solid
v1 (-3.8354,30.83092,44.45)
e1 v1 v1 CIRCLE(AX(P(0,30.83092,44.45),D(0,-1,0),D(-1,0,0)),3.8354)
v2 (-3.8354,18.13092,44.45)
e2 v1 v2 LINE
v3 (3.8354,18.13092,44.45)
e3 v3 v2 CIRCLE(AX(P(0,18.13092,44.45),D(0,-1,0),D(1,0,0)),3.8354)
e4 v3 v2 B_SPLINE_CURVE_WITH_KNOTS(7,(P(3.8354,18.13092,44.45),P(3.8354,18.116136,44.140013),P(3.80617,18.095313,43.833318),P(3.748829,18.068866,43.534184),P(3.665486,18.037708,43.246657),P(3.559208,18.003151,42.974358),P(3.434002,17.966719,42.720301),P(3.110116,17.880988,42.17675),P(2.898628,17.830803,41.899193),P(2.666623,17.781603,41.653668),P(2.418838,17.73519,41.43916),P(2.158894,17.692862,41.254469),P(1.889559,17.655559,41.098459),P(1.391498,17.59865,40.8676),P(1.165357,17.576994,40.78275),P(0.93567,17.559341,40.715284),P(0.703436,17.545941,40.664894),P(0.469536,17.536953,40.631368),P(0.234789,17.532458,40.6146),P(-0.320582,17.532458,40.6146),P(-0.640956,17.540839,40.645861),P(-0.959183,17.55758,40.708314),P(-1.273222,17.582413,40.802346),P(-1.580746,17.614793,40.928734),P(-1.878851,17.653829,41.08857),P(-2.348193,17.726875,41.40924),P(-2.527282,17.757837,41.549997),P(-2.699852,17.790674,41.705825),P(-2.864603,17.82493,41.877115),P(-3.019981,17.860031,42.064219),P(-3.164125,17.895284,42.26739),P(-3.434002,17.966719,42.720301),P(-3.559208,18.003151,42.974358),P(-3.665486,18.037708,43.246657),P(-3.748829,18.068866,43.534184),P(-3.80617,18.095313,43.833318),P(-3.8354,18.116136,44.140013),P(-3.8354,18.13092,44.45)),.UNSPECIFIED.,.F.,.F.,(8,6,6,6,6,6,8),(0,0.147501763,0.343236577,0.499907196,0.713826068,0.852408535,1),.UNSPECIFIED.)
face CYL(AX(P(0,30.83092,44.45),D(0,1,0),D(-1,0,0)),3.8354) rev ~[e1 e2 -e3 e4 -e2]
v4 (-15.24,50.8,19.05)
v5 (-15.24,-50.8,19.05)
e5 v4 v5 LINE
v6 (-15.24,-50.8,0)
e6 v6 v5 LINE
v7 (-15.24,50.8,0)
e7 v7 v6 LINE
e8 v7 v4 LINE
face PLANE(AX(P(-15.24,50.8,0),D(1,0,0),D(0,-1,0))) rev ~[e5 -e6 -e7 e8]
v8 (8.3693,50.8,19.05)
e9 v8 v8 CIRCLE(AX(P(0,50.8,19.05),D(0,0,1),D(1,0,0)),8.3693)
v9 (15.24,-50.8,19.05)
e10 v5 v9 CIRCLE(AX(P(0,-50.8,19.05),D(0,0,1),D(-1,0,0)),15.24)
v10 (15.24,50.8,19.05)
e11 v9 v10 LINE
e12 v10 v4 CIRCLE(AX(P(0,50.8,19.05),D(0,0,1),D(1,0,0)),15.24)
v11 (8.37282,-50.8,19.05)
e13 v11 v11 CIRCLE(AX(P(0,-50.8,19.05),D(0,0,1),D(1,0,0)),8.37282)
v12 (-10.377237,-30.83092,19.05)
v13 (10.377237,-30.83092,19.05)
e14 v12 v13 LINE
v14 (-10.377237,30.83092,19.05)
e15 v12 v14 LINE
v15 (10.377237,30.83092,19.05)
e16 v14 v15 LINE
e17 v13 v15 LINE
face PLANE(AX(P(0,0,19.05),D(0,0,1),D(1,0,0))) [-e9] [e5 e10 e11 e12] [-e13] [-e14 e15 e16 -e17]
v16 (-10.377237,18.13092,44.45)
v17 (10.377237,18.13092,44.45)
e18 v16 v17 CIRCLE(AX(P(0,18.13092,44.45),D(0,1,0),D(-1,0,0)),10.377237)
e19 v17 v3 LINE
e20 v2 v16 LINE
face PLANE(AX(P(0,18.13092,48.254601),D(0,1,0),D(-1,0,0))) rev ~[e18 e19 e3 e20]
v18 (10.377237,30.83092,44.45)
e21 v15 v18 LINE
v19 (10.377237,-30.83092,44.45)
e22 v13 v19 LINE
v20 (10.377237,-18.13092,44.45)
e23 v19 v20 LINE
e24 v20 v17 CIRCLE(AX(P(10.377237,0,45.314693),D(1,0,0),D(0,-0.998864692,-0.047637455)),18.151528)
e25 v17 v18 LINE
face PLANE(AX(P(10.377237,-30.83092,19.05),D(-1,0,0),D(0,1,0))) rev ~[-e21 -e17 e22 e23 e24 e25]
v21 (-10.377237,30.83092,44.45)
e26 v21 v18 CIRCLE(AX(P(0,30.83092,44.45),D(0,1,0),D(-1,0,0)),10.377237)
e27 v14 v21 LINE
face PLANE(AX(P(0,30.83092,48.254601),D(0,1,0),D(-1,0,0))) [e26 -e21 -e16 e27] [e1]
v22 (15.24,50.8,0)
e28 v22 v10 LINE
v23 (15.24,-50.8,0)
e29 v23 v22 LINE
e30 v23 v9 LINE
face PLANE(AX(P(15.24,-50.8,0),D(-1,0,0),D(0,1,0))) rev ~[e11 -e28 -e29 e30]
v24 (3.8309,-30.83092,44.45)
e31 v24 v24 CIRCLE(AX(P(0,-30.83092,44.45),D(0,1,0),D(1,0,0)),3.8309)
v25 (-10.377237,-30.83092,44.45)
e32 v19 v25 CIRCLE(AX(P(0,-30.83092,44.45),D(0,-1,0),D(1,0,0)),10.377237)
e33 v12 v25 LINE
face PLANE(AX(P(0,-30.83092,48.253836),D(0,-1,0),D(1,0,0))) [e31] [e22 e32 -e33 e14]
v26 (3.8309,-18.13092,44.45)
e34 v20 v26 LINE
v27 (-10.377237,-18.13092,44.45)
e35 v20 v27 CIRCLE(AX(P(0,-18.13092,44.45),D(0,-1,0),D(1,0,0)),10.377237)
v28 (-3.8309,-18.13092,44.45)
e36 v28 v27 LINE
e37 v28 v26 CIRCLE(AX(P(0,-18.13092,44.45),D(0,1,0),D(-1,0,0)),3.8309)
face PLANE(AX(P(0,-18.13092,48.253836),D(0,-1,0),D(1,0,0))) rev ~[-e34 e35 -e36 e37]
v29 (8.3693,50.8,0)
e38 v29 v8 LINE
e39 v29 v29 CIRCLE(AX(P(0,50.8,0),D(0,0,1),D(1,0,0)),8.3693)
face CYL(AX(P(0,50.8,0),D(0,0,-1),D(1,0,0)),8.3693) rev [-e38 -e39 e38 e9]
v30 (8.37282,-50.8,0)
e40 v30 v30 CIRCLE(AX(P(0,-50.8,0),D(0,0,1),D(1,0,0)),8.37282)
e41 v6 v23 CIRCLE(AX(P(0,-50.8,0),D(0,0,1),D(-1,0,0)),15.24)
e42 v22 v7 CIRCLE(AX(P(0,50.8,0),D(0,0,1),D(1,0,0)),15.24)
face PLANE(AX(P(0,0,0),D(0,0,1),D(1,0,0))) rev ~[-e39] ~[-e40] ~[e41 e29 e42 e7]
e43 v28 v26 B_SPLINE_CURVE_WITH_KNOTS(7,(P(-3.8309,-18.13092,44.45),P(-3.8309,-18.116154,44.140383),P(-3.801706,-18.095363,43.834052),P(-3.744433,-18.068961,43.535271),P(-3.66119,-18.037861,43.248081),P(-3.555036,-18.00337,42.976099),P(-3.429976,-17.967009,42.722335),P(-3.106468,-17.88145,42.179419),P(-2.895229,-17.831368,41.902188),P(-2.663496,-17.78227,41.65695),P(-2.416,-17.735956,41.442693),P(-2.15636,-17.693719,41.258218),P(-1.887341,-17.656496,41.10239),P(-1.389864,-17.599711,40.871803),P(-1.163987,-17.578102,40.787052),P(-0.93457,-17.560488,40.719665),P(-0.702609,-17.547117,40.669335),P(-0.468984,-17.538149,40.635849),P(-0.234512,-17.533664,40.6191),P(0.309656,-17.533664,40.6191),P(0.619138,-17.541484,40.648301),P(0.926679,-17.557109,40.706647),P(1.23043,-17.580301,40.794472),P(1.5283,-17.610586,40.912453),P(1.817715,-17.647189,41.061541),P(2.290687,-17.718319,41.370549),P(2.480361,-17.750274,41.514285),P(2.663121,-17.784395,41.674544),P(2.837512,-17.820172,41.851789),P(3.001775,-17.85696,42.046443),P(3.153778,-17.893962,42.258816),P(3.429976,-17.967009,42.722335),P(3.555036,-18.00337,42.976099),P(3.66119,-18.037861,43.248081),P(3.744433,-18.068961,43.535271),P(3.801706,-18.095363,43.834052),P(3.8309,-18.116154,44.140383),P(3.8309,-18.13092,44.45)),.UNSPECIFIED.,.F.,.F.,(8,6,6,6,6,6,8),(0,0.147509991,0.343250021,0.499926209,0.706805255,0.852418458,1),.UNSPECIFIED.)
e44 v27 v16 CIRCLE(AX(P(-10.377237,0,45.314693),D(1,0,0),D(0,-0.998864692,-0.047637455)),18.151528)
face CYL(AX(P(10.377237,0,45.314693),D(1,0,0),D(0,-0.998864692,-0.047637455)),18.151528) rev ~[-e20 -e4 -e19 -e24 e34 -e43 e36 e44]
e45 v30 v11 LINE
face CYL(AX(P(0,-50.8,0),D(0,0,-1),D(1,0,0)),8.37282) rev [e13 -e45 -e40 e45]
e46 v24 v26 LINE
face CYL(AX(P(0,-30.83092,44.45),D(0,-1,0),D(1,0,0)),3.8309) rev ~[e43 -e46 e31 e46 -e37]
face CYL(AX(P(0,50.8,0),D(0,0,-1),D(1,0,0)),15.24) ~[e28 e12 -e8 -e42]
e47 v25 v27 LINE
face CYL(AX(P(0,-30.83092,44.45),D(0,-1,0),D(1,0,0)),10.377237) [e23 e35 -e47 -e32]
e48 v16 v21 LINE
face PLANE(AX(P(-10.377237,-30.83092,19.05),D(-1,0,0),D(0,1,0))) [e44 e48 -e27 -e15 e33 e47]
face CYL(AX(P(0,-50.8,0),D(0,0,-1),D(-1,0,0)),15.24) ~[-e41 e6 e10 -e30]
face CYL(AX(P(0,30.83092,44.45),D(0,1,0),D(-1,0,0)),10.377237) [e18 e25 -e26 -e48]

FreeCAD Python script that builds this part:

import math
import FreeCAD as App
import Part
import Sketcher
Q = App.Units.Quantity

doc = App.newDocument("Part")
params = doc.addObject("Spreadsheet::Sheet", "Params")
for row, (alias, value) in enumerate([
    ("sketch1_radius", "0.6 in"),
    ("sketch1_height", "4 in"),
    ("sketch1_diameter", "0.659 in"),
    ("pad1_length", "0.75 in"),
    ("pad2_length", "1 in"),
    ("pocket1_length", "1 in"),
    ("pad3_length", "0.5 in"),
    ("pocket2_length", "0.6 in"),
    ("sketch6_radius", "0.151 in"),
    ("pad4_length", "0.5 in"),
    ("sketch7_diameter", "0.302 in"),
    ("pocket3_length", "0.6 in"),
], start=1):
    params.set(f"A{row}", alias)
    params.set(f"B{row}", "=" + value)
    params.setAlias(f"B{row}", alias)

body = doc.addObject("PartDesign::Body", "Body")

# Sketch on XY plane
sketch1 = body.newObject("Sketcher::SketchObject", "Sketch")
sketch1.AttachmentSupport = (doc.getObject("XY_Plane"), [""])
sketch1.MapMode = "FlatFace"
sketch1.addGeometry(Part.LineSegment(App.Vector(-15, 51, 0), App.Vector(-15, -51, 0)), False)
sketch1.addGeometry(Part.ArcOfCircle(Part.Circle(App.Vector(0, -51, 0), App.Vector(0, 0, 1), 15), math.radians(180), math.radians(360)), False)
sketch1.addGeometry(Part.LineSegment(App.Vector(15, -51, 0), App.Vector(15, 51, 0)), False)
sketch1.addGeometry(Part.ArcOfCircle(Part.Circle(App.Vector(0, 51, 0), App.Vector(0, 0, 1), 15), math.radians(0), math.radians(180)), False)
sketch1.addGeometry(Part.Circle(App.Vector(0, -51, 0), App.Vector(0, 0, 1), 8), False)
sketch1.addGeometry(Part.Circle(App.Vector(0, 51, 0), App.Vector(0, 0, 1), 8), False)
sketch1.addConstraint(Sketcher.Constraint("Tangent", 0, 2, 1, 1))
sketch1.addConstraint(Sketcher.Constraint("Tangent", 1, 2, 2, 1))
sketch1.addConstraint(Sketcher.Constraint("Tangent", 2, 2, 3, 1))
sketch1.addConstraint(Sketcher.Constraint("Tangent", 3, 2, 0, 1))
sketch1.addConstraint(Sketcher.Constraint("Vertical", 0))
sketch1.addConstraint(Sketcher.Constraint("Vertical", 2))
sketch1.addConstraint(Sketcher.Constraint("Coincident", 4, 3, 1, 3))
sketch1.addConstraint(Sketcher.Constraint("Coincident", 5, 3, 3, 3))
sketch1.addConstraint(Sketcher.Constraint("Symmetric", 1, 3, 3, 3, -1, 1))
sketch1.addConstraint(Sketcher.Constraint("Radius", 1, Q("0.6 in")))
sketch1.addConstraint(Sketcher.Constraint("DistanceY", 0, 2, 0, 1, Q("4 in")))
sketch1.addConstraint(Sketcher.Constraint("Diameter", 5, Q("0.659 in")))
sketch1.addConstraint(Sketcher.Constraint("Diameter", 4, 16.74564))
sketch1.setExpression("Constraints[9]", "Params.sketch1_radius")
sketch1.setExpression("Constraints[10]", "Params.sketch1_height")
sketch1.setExpression("Constraints[11]", "Params.sketch1_diameter")
pad1 = body.newObject("PartDesign::Pad", "Pad")
pad1.Profile = sketch1
pad1.setExpression("Length", "Params.pad1_length")

# Sketch on XY plane
sketch2 = body.newObject("Sketcher::SketchObject", "Sketch001")
sketch2.AttachmentSupport = (doc.getObject("XY_Plane"), [""])
sketch2.MapMode = "FlatFace"
sketch2.AttachmentOffset = App.Placement(App.Vector(0, 0, 0.75 * 25.4), App.Rotation())
sketch2.addGeometry(Part.LineSegment(App.Vector(-10, 31, 0), App.Vector(-10, -31, 0)), False)
sketch2.addGeometry(Part.LineSegment(App.Vector(-10, -31, 0), App.Vector(10, -31, 0)), False)
sketch2.addGeometry(Part.LineSegment(App.Vector(10, -31, 0), App.Vector(10, 31, 0)), False)
sketch2.addGeometry(Part.LineSegment(App.Vector(10, 31, 0), App.Vector(-10, 31, 0)), False)
sketch2.addConstraint(Sketcher.Constraint("Coincident", 0, 2, 1, 1))
sketch2.addConstraint(Sketcher.Constraint("Coincident", 1, 2, 2, 1))
sketch2.addConstraint(Sketcher.Constraint("Coincident", 2, 2, 3, 1))
sketch2.addConstraint(Sketcher.Constraint("Coincident", 3, 2, 0, 1))
sketch2.addConstraint(Sketcher.Constraint("Vertical", 0))
sketch2.addConstraint(Sketcher.Constraint("Horizontal", 1))
sketch2.addConstraint(Sketcher.Constraint("Vertical", 2))
sketch2.addConstraint(Sketcher.Constraint("Horizontal", 3))
sketch2.addConstraint(Sketcher.Constraint("Symmetric", 0, 2, 2, 2, -1, 1))
sketch2.addConstraint(Sketcher.Constraint("DistanceY", 0, 2, 0, 1, 61.66184))
sketch2.addConstraint(Sketcher.Constraint("DistanceX", 1, 1, 1, 2, 20.754474))
pad2 = body.newObject("PartDesign::Pad", "Pad001")
pad2.Profile = sketch2
pad2.setExpression("Length", "Params.pad2_length")

# Sketch on YZ plane
sketch3 = body.newObject("Sketcher::SketchObject", "Sketch002")
sketch3.AttachmentSupport = (doc.getObject("YZ_Plane"), [""])
sketch3.MapMode = "FlatFace"
sketch3.AttachmentOffset = App.Placement(App.Vector(0, 0, 10.377237), App.Rotation())
sketch3.addGeometry(Part.LineSegment(App.Vector(18, 44, 0), App.Vector(-18, 44, 0)), False)
sketch3.addGeometry(Part.ArcOfCircle(Part.Circle(App.Vector(0, 45, 0), App.Vector(0, 0, 1), 18), math.radians(-177), math.radians(-3)), False)
sketch3.addConstraint(Sketcher.Constraint("Coincident", 0, 1, 1, 2))
sketch3.addConstraint(Sketcher.Constraint("Coincident", 1, 1, 0, 2))
sketch3.addConstraint(Sketcher.Constraint("Horizontal", 0))
sketch3.addConstraint(Sketcher.Constraint("PointOnObject", 1, 3, -2))
sketch3.addConstraint(Sketcher.Constraint("DistanceY", -1, 1, 0, 1, Q("1.75 in")))
sketch3.addConstraint(Sketcher.Constraint("Radius", 1, 18.151528))
sketch3.addConstraint(Sketcher.Constraint("DistanceX", 0, 2, 0, 1, 36.26184))
pocket1 = body.newObject("PartDesign::Pocket", "Pocket")
pocket1.Profile = sketch3
pocket1.setExpression("Length", "Params.pocket1_length")

# Sketch on XZ plane
sketch4 = body.newObject("Sketcher::SketchObject", "Sketch003")
sketch4.AttachmentSupport = (doc.getObject("XZ_Plane"), [""])
sketch4.MapMode = "FlatFace"
sketch4.AttachmentOffset = App.Placement(App.Vector(0, 0, 30.83092), App.Rotation())
sketch4.addGeometry(Part.LineSegment(App.Vector(3.8, 44.5, 0), App.Vector(10.4, 44.5, 0)), False)
sketch4.addGeometry(Part.ArcOfCircle(Part.Circle(App.Vector(0, 44.5, 0), App.Vector(0, 0, 1), 10.4), math.radians(0), math.radians(180)), False)
sketch4.addGeometry(Part.LineSegment(App.Vector(-10.4, 44.5, 0), App.Vector(-3.8, 44.5, 0)), False)
sketch4.addGeometry(Part.ArcOfCircle(Part.Circle(App.Vector(0, 44.5, 0), App.Vector(0, 0, 1), 3.8), math.radians(0), math.radians(180)), False)
sketch4.addConstraint(Sketcher.Constraint("Coincident", 0, 2, 1, 1))
sketch4.addConstraint(Sketcher.Constraint("Coincident", 1, 2, 2, 1))
sketch4.addConstraint(Sketcher.Constraint("Coincident", 2, 2, 3, 2))
sketch4.addConstraint(Sketcher.Constraint("Coincident", 3, 1, 0, 1))
sketch4.addConstraint(Sketcher.Constraint("Horizontal", 0))
sketch4.addConstraint(Sketcher.Constraint("Horizontal", 2))
sketch4.addConstraint(Sketcher.Constraint("Coincident", 3, 3, 1, 3))
sketch4.addConstraint(Sketcher.Constraint("Symmetric", 0, 2, 1, 2, -2))
sketch4.addConstraint(Sketcher.Constraint("Horizontal", 3, 3, 0, 2))
sketch4.addConstraint(Sketcher.Constraint("DistanceY", -1, 1, 1, 3, Q("1.75 in")))
sketch4.addConstraint(Sketcher.Constraint("Radius", 3, 3.8309))
sketch4.addConstraint(Sketcher.Constraint("Radius", 1, 10.377237))
pad3 = body.newObject("PartDesign::Pad", "Pad002")
pad3.Profile = sketch4
pad3.setExpression("Length", "Params.pad3_length")
pad3.Reversed = True

# Sketch on XZ plane
sketch5 = body.newObject("Sketcher::SketchObject", "Sketch004")
sketch5.AttachmentSupport = (doc.getObject("XZ_Plane"), [""])
sketch5.MapMode = "FlatFace"
sketch5.AttachmentOffset = App.Placement(App.Vector(0, 0, 30.83092), App.Rotation())
sketch5.addGeometry(Part.Circle(App.Vector(0, 44.5, 0), App.Vector(0, 0, 1), 3.8), False)
sketch5.addConstraint(Sketcher.Constraint("PointOnObject", 0, 3, -2))
sketch5.addConstraint(Sketcher.Constraint("Diameter", 0, 7.6618))
sketch5.addConstraint(Sketcher.Constraint("DistanceY", -1, 1, 0, 3, Q("1.75 in")))
pocket2 = body.newObject("PartDesign::Pocket", "Pocket001")
pocket2.Profile = sketch5
pocket2.setExpression("Length", "Params.pocket2_length")

# Sketch on XZ plane
sketch6 = body.newObject("Sketcher::SketchObject", "Sketch005")
sketch6.AttachmentSupport = (doc.getObject("XZ_Plane"), [""])
sketch6.MapMode = "FlatFace"
sketch6.AttachmentOffset = App.Placement(App.Vector(0, 0, -30.83092), App.Rotation())
sketch6.addGeometry(Part.LineSegment(App.Vector(-3.8, 44.5, 0), App.Vector(-10.4, 44.5, 0)), False)
sketch6.addGeometry(Part.ArcOfCircle(Part.Circle(App.Vector(0, 44.5, 0), App.Vector(0, 0, 1), 10.4), math.radians(0), math.radians(180)), False)
sketch6.addGeometry(Part.LineSegment(App.Vector(10.4, 44.5, 0), App.Vector(3.8, 44.5, 0)), False)
sketch6.addGeometry(Part.ArcOfCircle(Part.Circle(App.Vector(0, 44.5, 0), App.Vector(0, 0, 1), 3.8), math.radians(0), math.radians(180)), False)
sketch6.addConstraint(Sketcher.Constraint("Coincident", 0, 2, 1, 2))
sketch6.addConstraint(Sketcher.Constraint("Coincident", 1, 1, 2, 1))
sketch6.addConstraint(Sketcher.Constraint("Coincident", 2, 2, 3, 1))
sketch6.addConstraint(Sketcher.Constraint("Coincident", 3, 2, 0, 1))
sketch6.addConstraint(Sketcher.Constraint("Horizontal", 0))
sketch6.addConstraint(Sketcher.Constraint("Horizontal", 2))
sketch6.addConstraint(Sketcher.Constraint("Coincident", 3, 3, 1, 3))
sketch6.addConstraint(Sketcher.Constraint("Symmetric", 0, 2, 1, 1, -2))
sketch6.addConstraint(Sketcher.Constraint("Horizontal", 3, 3, 0, 2))
sketch6.addConstraint(Sketcher.Constraint("Radius", 3, Q("0.151 in")))
sketch6.addConstraint(Sketcher.Constraint("DistanceY", -1, 1, 1, 3, Q("1.75 in")))
sketch6.addConstraint(Sketcher.Constraint("Radius", 1, 10.377237))
sketch6.setExpression("Constraints[9]", "Params.sketch6_radius")
pad4 = body.newObject("PartDesign::Pad", "Pad003")
pad4.Profile = sketch6
pad4.setExpression("Length", "Params.pad4_length")

# Sketch on XZ plane
sketch7 = body.newObject("Sketcher::SketchObject", "Sketch006")
sketch7.AttachmentSupport = (doc.getObject("XZ_Plane"), [""])
sketch7.MapMode = "FlatFace"
sketch7.AttachmentOffset = App.Placement(App.Vector(0, 0, -30.83092), App.Rotation())
sketch7.addGeometry(Part.Circle(App.Vector(0, 44.5, 0), App.Vector(0, 0, 1), 3.8), False)
sketch7.addConstraint(Sketcher.Constraint("PointOnObject", 0, 3, -2))
sketch7.addConstraint(Sketcher.Constraint("Diameter", 0, Q("0.302 in")))
sketch7.addConstraint(Sketcher.Constraint("DistanceY", -1, 1, 0, 3, Q("1.75 in")))
sketch7.setExpression("Constraints[1]", "Params.sketch7_diameter")
pocket3 = body.newObject("PartDesign::Pocket", "Pocket002")
pocket3.Profile = sketch7
pocket3.setExpression("Length", "Params.pocket3_length")
pocket3.Reversed = True

doc.recompute()
